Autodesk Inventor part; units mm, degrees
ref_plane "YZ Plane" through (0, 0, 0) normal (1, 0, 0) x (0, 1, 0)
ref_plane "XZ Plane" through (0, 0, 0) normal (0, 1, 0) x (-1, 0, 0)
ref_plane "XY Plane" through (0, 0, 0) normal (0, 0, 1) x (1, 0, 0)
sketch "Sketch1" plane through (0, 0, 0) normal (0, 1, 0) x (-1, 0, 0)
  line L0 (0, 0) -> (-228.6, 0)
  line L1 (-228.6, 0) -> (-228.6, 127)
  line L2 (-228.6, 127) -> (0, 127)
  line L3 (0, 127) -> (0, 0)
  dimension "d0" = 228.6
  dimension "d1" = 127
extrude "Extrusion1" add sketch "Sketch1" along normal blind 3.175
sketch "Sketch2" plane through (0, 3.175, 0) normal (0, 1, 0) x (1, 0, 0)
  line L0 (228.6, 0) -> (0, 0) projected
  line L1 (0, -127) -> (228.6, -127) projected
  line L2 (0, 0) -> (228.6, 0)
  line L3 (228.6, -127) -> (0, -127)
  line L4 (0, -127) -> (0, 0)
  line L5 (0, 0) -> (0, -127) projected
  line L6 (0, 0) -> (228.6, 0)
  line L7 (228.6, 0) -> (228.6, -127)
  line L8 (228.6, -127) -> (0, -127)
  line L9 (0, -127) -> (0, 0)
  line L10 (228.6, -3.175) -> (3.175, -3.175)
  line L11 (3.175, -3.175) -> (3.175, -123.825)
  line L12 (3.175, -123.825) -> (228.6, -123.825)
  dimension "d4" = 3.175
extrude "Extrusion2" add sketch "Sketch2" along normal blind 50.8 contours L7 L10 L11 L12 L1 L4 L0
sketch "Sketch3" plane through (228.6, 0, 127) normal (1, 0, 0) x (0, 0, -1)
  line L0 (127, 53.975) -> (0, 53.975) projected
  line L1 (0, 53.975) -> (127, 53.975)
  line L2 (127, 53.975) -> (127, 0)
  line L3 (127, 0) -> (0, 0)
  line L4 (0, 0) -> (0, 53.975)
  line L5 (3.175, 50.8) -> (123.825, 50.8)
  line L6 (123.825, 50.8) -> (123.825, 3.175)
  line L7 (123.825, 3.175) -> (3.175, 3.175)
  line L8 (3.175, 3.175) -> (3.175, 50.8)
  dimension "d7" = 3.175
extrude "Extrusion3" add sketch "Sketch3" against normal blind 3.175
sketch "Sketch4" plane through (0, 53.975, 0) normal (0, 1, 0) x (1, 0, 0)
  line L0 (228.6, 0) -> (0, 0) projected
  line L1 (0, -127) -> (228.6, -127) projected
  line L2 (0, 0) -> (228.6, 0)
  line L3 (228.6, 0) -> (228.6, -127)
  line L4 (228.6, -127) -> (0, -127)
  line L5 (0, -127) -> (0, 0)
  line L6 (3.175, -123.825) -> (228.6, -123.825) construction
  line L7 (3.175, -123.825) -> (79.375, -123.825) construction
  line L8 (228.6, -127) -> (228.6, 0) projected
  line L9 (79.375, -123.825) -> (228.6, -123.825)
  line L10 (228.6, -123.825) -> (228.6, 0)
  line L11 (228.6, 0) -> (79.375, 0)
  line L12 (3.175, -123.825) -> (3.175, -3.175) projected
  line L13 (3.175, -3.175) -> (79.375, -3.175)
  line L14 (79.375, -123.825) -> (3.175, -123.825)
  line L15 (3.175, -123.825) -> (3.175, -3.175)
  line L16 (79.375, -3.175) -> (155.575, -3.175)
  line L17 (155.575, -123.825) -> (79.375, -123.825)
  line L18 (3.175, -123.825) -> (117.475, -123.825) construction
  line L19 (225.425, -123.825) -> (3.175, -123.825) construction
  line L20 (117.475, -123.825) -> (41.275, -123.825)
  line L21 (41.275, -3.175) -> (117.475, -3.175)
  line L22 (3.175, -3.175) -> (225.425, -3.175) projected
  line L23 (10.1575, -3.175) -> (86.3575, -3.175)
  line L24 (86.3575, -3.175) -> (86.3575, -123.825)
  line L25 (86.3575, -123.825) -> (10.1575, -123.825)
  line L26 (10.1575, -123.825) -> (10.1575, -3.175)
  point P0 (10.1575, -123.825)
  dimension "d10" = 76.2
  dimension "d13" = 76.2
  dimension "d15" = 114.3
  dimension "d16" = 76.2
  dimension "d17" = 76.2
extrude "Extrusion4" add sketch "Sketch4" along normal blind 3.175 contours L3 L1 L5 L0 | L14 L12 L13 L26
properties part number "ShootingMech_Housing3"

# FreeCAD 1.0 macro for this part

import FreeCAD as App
import Part
import Sketcher
Q = App.Units.Quantity


def add_polygon(sketch, points):
    """Adds a closed chain of lines whose ends are joined by coincident constraints."""
    first, n = sketch.GeometryCount, len(points)
    for a, b in zip(points, points[1:] + points[:1]):
        sketch.addGeometry(Part.LineSegment(App.Vector(*a, 0), App.Vector(*b, 0)), False)
    for i in range(n):
        sketch.addConstraint(Sketcher.Constraint("Coincident", first + i, 2, first + (i + 1) % n, 1))

doc = App.newDocument("Part")
body = doc.addObject("PartDesign::Body", "Body")

# Sketch on XZ plane
sketch1 = body.newObject("Sketcher::SketchObject", "Sketch")
sketch1.AttachmentSupport = (doc.getObject("XZ_Plane"), [""])
sketch1.MapMode = "FlatFace"
add_polygon(sketch1, [(229, 0), (0, 0), (0, 127), (229, 127)])  # lines 0-3
sketch1.addConstraint([
    Sketcher.Constraint("Horizontal", 0),
    Sketcher.Constraint("Vertical", 1),
    Sketcher.Constraint("Horizontal", 2),
    Sketcher.Constraint("Vertical", 3),
    Sketcher.Constraint("Coincident", 0, 2, -1, 1),
    Sketcher.Constraint("DistanceX", 0, 2, 0, 1, Q("9 in")),
    Sketcher.Constraint("DistanceY", 1, 1, 1, 2, Q("5 in")),
])
pad1 = body.newObject("PartDesign::Pad", "Pad")
pad1.Profile = sketch1
pad1.Length = Q("0.125 in")
pad1.Reversed = True

# Sketch on XZ plane
sketch2 = body.newObject("Sketcher::SketchObject", "Sketch001")
sketch2.AttachmentSupport = (doc.getObject("XZ_Plane"), [""])
sketch2.MapMode = "FlatFace"
sketch2.AttachmentOffset = App.Placement(App.Vector(0, 0, -0.125 * 25.4), App.Rotation())
add_polygon(sketch2, [(228.6, 3.2), (228.6, 0), (0, 0), (0, 127), (228.6, 127), (228.6, 123.8), (3.2, 123.8), (3.2, 3.2)])  # lines 0-7
sketch2.addConstraint([
    Sketcher.Constraint("Vertical", 0),
    Sketcher.Constraint("Horizontal", 1),
    Sketcher.Constraint("Vertical", 2),
    Sketcher.Constraint("Horizontal", 3),
    Sketcher.Constraint("Vertical", 4),
    Sketcher.Constraint("Horizontal", 5),
    Sketcher.Constraint("Vertical", 6),
    Sketcher.Constraint("Horizontal", 7),
    Sketcher.Constraint("Coincident", 1, 2, -1, 1),
    Sketcher.Constraint("Vertical", 0, 2, 3, 2),
    Sketcher.Constraint("Equal", 0, 4),
    Sketcher.Constraint("DistanceX", 1, 2, 1, 1, Q("9 in")),
    Sketcher.Constraint("DistanceY", 0, 2, 0, 1, Q("0.125 in")),
    Sketcher.Constraint("DistanceY", 2, 1, 2, 2, Q("5 in")),
    Sketcher.Constraint("DistanceX", -1, 1, 5, 2, Q("0.125 in")),
])
pad2 = body.newObject("PartDesign::Pad", "Pad001")
pad2.Profile = sketch2
pad2.Length = Q("2 in")
pad2.Reversed = True

# Sketch on YZ plane
sketch3 = body.newObject("Sketcher::SketchObject", "Sketch002")
sketch3.AttachmentSupport = (doc.getObject("YZ_Plane"), [""])
sketch3.MapMode = "FlatFace"
sketch3.AttachmentOffset = App.Placement(App.Vector(0, 0, 9 * 25.4), App.Rotation())
add_polygon(sketch3, [(0, 0), (54, 0), (54, 127), (0, 127)])  # lines 0-3
add_polygon(sketch3, [(3, 124), (51, 124), (51, 3), (3, 3)])  # lines 4-7
sketch3.addConstraint([
    Sketcher.Constraint("Horizontal", 0),
    Sketcher.Constraint("Vertical", 1),
    Sketcher.Constraint("Horizontal", 2),
    Sketcher.Constraint("Vertical", 3),
    Sketcher.Constraint("Horizontal", 4),
    Sketcher.Constraint("Vertical", 5),
    Sketcher.Constraint("Horizontal", 6),
    Sketcher.Constraint("Vertical", 7),
    Sketcher.Constraint("Coincident", 3, 2, -1, 1),
    Sketcher.Constraint("DistanceY", 1, 1, 1, 2, Q("5 in")),
    Sketcher.Constraint("DistanceY", -1, 1, 5, 2, Q("0.125 in")),
    Sketcher.Constraint("DistanceX", -1, 1, 6, 2, Q("0.125 in")),
    Sketcher.Constraint("DistanceX", -1, 1, 4, 2, Q("2 in")),
    Sketcher.Constraint("DistanceX", 4, 2, 1, 2, Q("0.125 in")),
    Sketcher.Constraint("DistanceY", 4, 2, 1, 2, Q("0.125 in")),
])
pad3 = body.newObject("PartDesign::Pad", "Pad002")
pad3.Profile = sketch3
pad3.Length = Q("0.125 in")
pad3.Reversed = True

# Sketch on XZ plane
sketch4 = body.newObject("Sketcher::SketchObject", "Sketch003")
sketch4.AttachmentSupport = (doc.getObject("XZ_Plane"), [""])
sketch4.MapMode = "FlatFace"
sketch4.AttachmentOffset = App.Placement(App.Vector(0, 0, -2.125 * 25.4), App.Rotation())
add_polygon(sketch4, [(228.6, 123.8), (228.6, 0), (0, 0), (0, 127), (228.6, 127)])  # lines 0-4
add_polygon(sketch4, [(86.4, 3.2), (86.4, 123.8), (10.2, 123.8), (10.2, 3.2)])  # lines 5-8
sketch4.addConstraint([
    Sketcher.Constraint("Vertical", 0),
    Sketcher.Constraint("Horizontal", 1),
    Sketcher.Constraint("Vertical", 2),
    Sketcher.Constraint("Horizontal", 3),
    Sketcher.Constraint("Vertical", 4),
    Sketcher.Constraint("Vertical", 5),
    Sketcher.Constraint("Horizontal", 6),
    Sketcher.Constraint("Vertical", 7),
    Sketcher.Constraint("Horizontal", 8),
    Sketcher.Constraint("Coincident", 1, 2, -1, 1),
    Sketcher.Constraint("Horizontal", 4, 2, 5, 2),
    Sketcher.Constraint("DistanceX", 6, 2, 6, 1, Q("3 in")),
    Sketcher.Constraint("DistanceX", 1, 2, 1, 1, Q("9 in")),
    Sketcher.Constraint("DistanceY", 2, 1, 2, 2, Q("5 in")),
    Sketcher.Constraint("DistanceY", 5, 1, 5, 2, Q("4.75 in")),
    Sketcher.Constraint("DistanceY", 0, 2, 0, 1, Q("4.875 in")),
    Sketcher.Constraint("DistanceX", -1, 1, 5, 2, Q("3.3999 in")),
])
pad4 = body.newObject("PartDesign::Pad", "Pad003")
pad4.Profile = sketch4
pad4.Length = Q("0.125 in")
pad4.Reversed = True

doc.recompute()
